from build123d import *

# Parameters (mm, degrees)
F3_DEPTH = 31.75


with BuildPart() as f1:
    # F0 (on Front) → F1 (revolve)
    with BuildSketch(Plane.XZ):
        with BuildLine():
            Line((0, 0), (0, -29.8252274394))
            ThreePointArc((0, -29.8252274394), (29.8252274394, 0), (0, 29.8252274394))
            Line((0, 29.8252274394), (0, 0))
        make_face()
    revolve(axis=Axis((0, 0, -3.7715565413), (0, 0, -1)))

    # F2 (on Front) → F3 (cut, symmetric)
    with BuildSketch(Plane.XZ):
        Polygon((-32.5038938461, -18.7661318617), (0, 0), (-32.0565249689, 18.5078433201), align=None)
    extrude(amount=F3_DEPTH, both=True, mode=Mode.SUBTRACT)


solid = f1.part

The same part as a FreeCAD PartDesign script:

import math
import FreeCAD as App
import Part
import Sketcher

V = App.Vector
Q = App.Units.Quantity


def add_polygon(sketch, points):
    """Adds a closed chain of lines whose ends are joined by coincident constraints."""
    first, n = sketch.GeometryCount, len(points)
    for a, b in zip(points, points[1:] + points[:1]):
        sketch.addGeometry(Part.LineSegment(App.Vector(*a, 0), App.Vector(*b, 0)), False)
    for i in range(n):
        sketch.addConstraint(Sketcher.Constraint("Coincident", first + i, 2, first + (i + 1) % n, 1))

doc = App.newDocument("Part")
body = doc.addObject("PartDesign::Body", "Body")

sketch1 = body.newObject("Sketcher::SketchObject", "Sketch")
sketch1.AttachmentSupport = (doc.getObject("XZ_Plane"), [""])
sketch1.MapMode = "FlatFace"
sketch1.addGeometry([
    Part.ArcOfCircle(Part.Circle(V(0, 0, 0), V(0, 0, 1), 29.825227), math.radians(-90), math.radians(90)),
    Part.LineSegment(V(0, 29.825227, 0), V(0, -29.825227, 0)),
], False)
sketch1.addConstraint([
    Sketcher.Constraint("Coincident", 0, 1, 1, 2),
    Sketcher.Constraint("Coincident", 1, 1, 0, 2),
    Sketcher.Constraint("Vertical", 1),
    Sketcher.Constraint("Coincident", 0, 3, -1, 1),
    Sketcher.Constraint("PointOnObject", 0, 1, -2),
    Sketcher.Constraint("Radius", 0, 29.825227),
])
revolution = body.newObject("PartDesign::Revolution", "Revolution")
revolution.Profile = sketch1
revolution.ReferenceAxis = (sketch1, ["V_Axis"])
revolution.Angle = 360

sketch2 = body.newObject("Sketcher::SketchObject", "Sketch001")
sketch2.AttachmentSupport = (doc.getObject("XZ_Plane"), [""])
sketch2.MapMode = "FlatFace"
add_polygon(sketch2, [(-32.503894, -18.766132), (0, 0), (-32.056525, 18.507843)])
sketch2.addConstraint([
    Sketcher.Constraint("Coincident", 0, 2, -1, 1),
    Sketcher.Constraint("Angle", 0, Q("30 deg")),
    Sketcher.Constraint("Angle", 1, Q("150 deg")),
    Sketcher.Constraint("Distance", 2, 37.27666),
    Sketcher.Constraint("DistanceY", 2, 2, -1, 1, 18.766132),
])
pocket1 = body.newObject("PartDesign::Pocket", "Pocket")
pocket1.Profile = sketch2
pocket1.Length = Q("2.5 in")
pocket1.Midplane = True

doc.recompute()
